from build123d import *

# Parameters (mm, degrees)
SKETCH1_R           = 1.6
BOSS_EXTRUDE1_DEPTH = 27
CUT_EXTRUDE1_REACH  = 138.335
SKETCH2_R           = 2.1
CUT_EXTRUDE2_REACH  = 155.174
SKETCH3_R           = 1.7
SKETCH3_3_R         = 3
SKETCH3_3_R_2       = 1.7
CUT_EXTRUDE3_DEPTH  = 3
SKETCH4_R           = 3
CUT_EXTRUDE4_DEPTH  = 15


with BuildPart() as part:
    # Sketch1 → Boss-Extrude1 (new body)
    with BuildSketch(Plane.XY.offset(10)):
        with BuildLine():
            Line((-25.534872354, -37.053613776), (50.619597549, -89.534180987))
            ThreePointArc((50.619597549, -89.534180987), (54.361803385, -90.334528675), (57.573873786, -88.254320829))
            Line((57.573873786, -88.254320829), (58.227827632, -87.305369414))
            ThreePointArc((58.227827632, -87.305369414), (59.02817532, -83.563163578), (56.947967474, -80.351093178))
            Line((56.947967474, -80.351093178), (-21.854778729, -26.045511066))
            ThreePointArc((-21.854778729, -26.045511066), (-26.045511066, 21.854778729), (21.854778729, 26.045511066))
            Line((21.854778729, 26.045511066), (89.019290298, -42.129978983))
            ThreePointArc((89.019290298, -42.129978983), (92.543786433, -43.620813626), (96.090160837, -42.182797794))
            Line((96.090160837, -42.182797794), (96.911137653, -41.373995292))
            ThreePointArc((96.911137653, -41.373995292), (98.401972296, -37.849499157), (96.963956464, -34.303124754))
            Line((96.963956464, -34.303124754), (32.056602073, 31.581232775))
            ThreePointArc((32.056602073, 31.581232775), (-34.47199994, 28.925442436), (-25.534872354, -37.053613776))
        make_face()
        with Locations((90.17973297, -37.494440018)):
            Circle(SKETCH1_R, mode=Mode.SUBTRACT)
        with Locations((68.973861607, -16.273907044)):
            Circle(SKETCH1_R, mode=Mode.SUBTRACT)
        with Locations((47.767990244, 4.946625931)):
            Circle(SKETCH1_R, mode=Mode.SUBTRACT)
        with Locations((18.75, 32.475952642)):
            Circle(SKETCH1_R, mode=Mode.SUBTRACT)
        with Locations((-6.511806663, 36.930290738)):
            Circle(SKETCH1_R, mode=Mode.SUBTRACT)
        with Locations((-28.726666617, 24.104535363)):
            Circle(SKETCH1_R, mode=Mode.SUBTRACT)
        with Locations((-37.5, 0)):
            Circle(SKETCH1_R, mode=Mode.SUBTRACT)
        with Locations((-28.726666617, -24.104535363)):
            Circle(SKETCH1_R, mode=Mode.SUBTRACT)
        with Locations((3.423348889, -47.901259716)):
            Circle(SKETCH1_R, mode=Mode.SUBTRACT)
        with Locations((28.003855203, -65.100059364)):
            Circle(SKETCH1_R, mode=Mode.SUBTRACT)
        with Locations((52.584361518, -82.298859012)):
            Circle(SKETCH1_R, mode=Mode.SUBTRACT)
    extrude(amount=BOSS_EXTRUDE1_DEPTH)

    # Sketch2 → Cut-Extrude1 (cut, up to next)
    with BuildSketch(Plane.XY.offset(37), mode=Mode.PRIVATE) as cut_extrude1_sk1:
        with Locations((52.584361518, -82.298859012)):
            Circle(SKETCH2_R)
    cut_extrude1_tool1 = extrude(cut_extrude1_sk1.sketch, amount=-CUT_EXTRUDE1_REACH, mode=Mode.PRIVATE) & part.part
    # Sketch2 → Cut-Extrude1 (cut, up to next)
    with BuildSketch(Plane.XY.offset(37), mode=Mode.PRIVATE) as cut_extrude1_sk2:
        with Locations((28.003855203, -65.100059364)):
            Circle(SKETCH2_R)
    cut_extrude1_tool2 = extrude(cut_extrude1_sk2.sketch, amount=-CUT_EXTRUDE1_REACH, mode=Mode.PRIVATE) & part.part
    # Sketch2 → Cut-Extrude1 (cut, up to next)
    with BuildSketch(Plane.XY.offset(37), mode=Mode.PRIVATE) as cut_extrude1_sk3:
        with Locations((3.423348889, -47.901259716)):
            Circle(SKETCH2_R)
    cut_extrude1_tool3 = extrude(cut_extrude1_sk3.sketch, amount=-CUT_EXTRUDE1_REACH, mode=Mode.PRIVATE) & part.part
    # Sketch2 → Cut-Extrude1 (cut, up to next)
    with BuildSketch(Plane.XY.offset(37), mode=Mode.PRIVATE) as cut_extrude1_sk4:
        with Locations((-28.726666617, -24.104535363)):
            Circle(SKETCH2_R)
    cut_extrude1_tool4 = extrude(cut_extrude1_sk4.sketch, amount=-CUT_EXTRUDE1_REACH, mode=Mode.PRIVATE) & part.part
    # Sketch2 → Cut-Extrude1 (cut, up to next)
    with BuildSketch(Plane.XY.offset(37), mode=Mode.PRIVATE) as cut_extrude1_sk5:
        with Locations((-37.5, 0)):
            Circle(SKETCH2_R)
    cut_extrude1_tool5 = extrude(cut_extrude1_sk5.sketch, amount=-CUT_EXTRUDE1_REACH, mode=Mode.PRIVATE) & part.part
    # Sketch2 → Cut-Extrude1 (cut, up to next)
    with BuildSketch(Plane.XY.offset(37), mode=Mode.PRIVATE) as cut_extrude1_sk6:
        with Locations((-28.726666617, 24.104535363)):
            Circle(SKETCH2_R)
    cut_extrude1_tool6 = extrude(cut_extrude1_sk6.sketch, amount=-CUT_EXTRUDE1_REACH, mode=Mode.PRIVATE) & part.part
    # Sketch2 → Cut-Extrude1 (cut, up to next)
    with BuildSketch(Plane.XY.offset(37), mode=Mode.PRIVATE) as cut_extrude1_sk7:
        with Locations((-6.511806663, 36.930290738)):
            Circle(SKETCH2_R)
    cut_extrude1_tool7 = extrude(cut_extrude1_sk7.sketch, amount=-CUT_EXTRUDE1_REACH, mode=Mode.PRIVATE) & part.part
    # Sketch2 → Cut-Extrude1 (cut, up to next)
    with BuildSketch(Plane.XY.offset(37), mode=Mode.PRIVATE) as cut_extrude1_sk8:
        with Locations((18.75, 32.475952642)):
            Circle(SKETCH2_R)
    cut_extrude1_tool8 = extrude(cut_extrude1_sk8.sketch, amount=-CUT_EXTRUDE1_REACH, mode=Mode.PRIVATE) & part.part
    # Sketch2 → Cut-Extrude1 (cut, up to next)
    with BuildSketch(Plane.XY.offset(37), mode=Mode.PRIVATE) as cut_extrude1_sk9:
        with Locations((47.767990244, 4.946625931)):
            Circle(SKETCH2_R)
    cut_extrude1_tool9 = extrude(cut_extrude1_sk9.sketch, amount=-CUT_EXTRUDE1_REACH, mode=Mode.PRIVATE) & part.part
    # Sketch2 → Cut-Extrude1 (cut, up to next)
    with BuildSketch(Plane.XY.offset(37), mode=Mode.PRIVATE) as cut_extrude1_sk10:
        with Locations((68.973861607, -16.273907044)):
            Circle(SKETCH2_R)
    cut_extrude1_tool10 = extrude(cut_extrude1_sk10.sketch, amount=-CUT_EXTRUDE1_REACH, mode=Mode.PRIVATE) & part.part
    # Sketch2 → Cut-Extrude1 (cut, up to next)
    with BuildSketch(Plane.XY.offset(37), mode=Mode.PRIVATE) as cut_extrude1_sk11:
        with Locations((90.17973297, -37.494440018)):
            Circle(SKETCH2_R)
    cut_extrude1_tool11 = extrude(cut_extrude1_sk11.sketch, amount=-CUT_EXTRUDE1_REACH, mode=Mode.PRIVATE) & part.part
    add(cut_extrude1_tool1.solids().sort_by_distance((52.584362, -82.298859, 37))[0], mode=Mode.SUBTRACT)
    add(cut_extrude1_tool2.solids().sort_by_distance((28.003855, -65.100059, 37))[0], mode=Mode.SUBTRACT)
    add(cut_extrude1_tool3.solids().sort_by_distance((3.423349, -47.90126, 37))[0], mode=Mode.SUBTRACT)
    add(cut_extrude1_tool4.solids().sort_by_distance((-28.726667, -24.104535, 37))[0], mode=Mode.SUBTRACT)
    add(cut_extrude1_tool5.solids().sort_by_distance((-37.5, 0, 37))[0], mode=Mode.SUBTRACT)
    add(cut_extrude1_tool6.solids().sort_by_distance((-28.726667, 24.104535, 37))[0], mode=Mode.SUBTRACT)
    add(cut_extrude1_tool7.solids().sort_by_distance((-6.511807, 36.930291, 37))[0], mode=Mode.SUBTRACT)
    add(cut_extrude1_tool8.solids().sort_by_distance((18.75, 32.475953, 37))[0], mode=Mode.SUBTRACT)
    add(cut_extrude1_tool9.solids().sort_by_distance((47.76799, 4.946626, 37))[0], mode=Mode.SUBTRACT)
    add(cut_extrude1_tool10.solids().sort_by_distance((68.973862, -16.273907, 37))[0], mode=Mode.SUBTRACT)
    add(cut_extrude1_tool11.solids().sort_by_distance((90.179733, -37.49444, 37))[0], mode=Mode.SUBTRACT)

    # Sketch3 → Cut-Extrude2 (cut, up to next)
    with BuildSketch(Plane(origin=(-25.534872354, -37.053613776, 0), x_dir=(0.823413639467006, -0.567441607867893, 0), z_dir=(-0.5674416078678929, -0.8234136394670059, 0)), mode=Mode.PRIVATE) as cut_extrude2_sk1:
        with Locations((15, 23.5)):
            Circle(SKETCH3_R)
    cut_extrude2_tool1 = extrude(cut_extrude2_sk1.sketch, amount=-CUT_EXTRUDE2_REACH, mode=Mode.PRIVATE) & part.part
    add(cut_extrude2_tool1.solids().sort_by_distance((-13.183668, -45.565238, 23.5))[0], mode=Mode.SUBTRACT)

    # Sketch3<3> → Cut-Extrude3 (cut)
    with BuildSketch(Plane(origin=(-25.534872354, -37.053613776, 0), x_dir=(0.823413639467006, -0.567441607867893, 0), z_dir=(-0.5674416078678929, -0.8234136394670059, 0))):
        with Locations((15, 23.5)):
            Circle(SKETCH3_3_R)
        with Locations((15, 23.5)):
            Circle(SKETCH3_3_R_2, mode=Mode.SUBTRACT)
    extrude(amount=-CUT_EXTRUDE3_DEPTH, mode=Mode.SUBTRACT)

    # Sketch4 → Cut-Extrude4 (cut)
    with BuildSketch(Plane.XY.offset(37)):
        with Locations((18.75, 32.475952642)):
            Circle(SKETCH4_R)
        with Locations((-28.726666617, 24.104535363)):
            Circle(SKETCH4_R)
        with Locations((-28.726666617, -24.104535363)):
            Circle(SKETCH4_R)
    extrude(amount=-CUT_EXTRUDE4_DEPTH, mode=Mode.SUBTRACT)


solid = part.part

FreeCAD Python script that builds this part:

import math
import FreeCAD as App
import Part
import Sketcher
from FreeCAD import Vector

doc = App.newDocument("Part")
params = doc.addObject("Spreadsheet::Sheet", "Params")
for row, (alias, value) in enumerate([
    ("sketch1_radius", "5 mm"),
    ("sketch1_radius2", "34 mm"),
    ("sketch1_radius3", "45 mm"),
    ("sketch1_diameter", "3.2 mm"),
    ("pad1_length", "27 mm"),
    ("sketch2_diameter", "4.2 mm"),
    ("pocket1_length", "27 mm"),
    ("sketch3_diameter", "4.2 mm"),
    ("pocket2_length", "27 mm"),
    ("sketch4_diameter", "4.2 mm"),
    ("pocket3_length", "27 mm"),
    ("sketch5_diameter", "4.2 mm"),
    ("pocket4_length", "27 mm"),
    ("sketch6_diameter", "4.2 mm"),
    ("pocket5_length", "27 mm"),
    ("sketch7_diameter", "4.2 mm"),
    ("pocket6_length", "27 mm"),
    ("sketch8_diameter", "4.2 mm"),
    ("pocket7_length", "27 mm"),
    ("sketch9_diameter", "4.2 mm"),
    ("pocket8_length", "27 mm"),
    ("sketch10_diameter", "4.2 mm"),
    ("pocket9_length", "27 mm"),
    ("sketch11_diameter", "4.2 mm"),
    ("pocket10_length", "27 mm"),
    ("sketch12_diameter", "4.2 mm"),
    ("pocket11_length", "27 mm"),
    ("sketch13_diameter", "3.4 mm"),
    ("sketch14_diameter", "6 mm"),
    ("sketch14_diameter2", "3.4 mm"),
    ("pocket13_length", "3 mm"),
    ("sketch15_diameter", "6 mm"),
    ("pocket14_length", "15 mm"),
], start=1):
    params.set(f"A{row}", alias)
    params.set(f"B{row}", "=" + value)
    params.setAlias(f"B{row}", alias)

body = doc.addObject("PartDesign::Body", "Body")

sketch1 = body.newObject("Sketcher::SketchObject", "Sketch")
sketch1.AttachmentSupport = (doc.getObject("XY_Plane"), [""])
sketch1.MapMode = "FlatFace"
sketch1.AttachmentOffset = App.Placement(Vector(0, 0, 10), App.Rotation())
sketch1.addGeometry([
    Part.LineSegment(Vector(-25.5, -37.1, 0), Vector(50.6, -89.5, 0)),
    Part.ArcOfCircle(Part.Circle(Vector(53.5, -85.4, 0), Vector(0, 0, 1), 5), math.radians(-125), math.radians(-35)),
    Part.LineSegment(Vector(57.6, -88.3, 0), Vector(58.2, -87.3, 0)),
    Part.ArcOfCircle(Part.Circle(Vector(54.1, -84.5, 0), Vector(0, 0, 1), 5), math.radians(-35), math.radians(55)),
    Part.LineSegment(Vector(56.9, -80.4, 0), Vector(-21.9, -26, 0)),
    Part.ArcOfCircle(Part.Circle(Vector(0, 0, 0), Vector(0, 0, 1), 34), math.radians(50), math.radians(230)),
    Part.LineSegment(Vector(21.9, 26, 0), Vector(89, -42.1, 0)),
    Part.ArcOfCircle(Part.Circle(Vector(92.6, -38.6, 0), Vector(0, 0, 1), 5), math.radians(-135), math.radians(-45)),
    Part.LineSegment(Vector(96.1, -42.2, 0), Vector(96.9, -41.4, 0)),
    Part.ArcOfCircle(Part.Circle(Vector(93.4, -37.8, 0), Vector(0, 0, 1), 5), math.radians(-45), math.radians(45)),
    Part.LineSegment(Vector(97, -34.3, 0), Vector(32.1, 31.6, 0)),
    Part.ArcOfCircle(Part.Circle(Vector(0, 0, 0), Vector(0, 0, 1), 45), math.radians(45), math.radians(235)),
    Part.Circle(Vector(-28.7, -24.1, 0), Vector(0, 0, 1), 1.6),
    Part.Circle(Vector(3.4, -47.9, 0), Vector(0, 0, 1), 1.6),
    Part.Circle(Vector(52.6, -82.3, 0), Vector(0, 0, 1), 1.6),
    Part.Circle(Vector(28, -65.1, 0), Vector(0, 0, 1), 1.6),
    Part.Circle(Vector(90.2, -37.5, 0), Vector(0, 0, 1), 1.6),
    Part.Circle(Vector(-37.5, 0, 0), Vector(0, 0, 1), 1.6),
    Part.Circle(Vector(-28.7, 24.1, 0), Vector(0, 0, 1), 1.6),
    Part.Circle(Vector(-6.5, 36.9, 0), Vector(0, 0, 1), 1.6),
    Part.Circle(Vector(18.8, 32.5, 0), Vector(0, 0, 1), 1.6),
    Part.Circle(Vector(47.8, 4.9, 0), Vector(0, 0, 1), 1.6),
    Part.Circle(Vector(69, -16.3, 0), Vector(0, 0, 1), 1.6),
], False)
sketch1.addConstraint([
    Sketcher.Constraint("Tangent", 0, 2, 1, 1),
    Sketcher.Constraint("Tangent", 1, 2, 2, 1),
    Sketcher.Constraint("Tangent", 2, 2, 3, 1),
    Sketcher.Constraint("Tangent", 3, 2, 4, 1),
    Sketcher.Constraint("Coincident", 4, 2, 5, 2),
    Sketcher.Constraint("Coincident", 5, 1, 6, 1),
    Sketcher.Constraint("Tangent", 6, 2, 7, 1),
    Sketcher.Constraint("Tangent", 7, 2, 8, 1),
    Sketcher.Constraint("Tangent", 8, 2, 9, 1),
    Sketcher.Constraint("Tangent", 9, 2, 10, 1),
    Sketcher.Constraint("Tangent", 10, 2, 11, 1),
    Sketcher.Constraint("Tangent", 11, 2, 0, 1),
    Sketcher.Constraint("Coincident", 5, 3, -1, 1),
    Sketcher.Constraint("Coincident", 11, 3, -1, 1),
    Sketcher.Constraint("Equal", 1, 3),
    Sketcher.Constraint("Equal", 3, 7),
    Sketcher.Constraint("Equal", 7, 9),
    Sketcher.Constraint("Equal", 12, 13),
    Sketcher.Constraint("Equal", 13, 14),
    Sketcher.Constraint("Equal", 14, 15),
    Sketcher.Constraint("Equal", 15, 16),
    Sketcher.Constraint("Equal", 16, 17),
    Sketcher.Constraint("Equal", 17, 18),
    Sketcher.Constraint("Equal", 18, 19),
    Sketcher.Constraint("Equal", 19, 20),
    Sketcher.Constraint("Equal", 20, 21),
    Sketcher.Constraint("Equal", 21, 22),
    Sketcher.Constraint("Symmetric", 12, 3, 18, 3, -1),
    Sketcher.Constraint("PointOnObject", 17, 3, -1),
    Sketcher.Constraint("Perpendicular", 0, 2),
    Sketcher.Constraint("Perpendicular", 2, 4),
    Sketcher.Constraint("Perpendicular", 6, 8),
    Sketcher.Constraint("Perpendicular", 8, 10),
    Sketcher.Constraint("Equal", 4, 6),
    Sketcher.Constraint("Equal", 2, 8),
    Sketcher.Constraint("Radius", 1, 5.0),
    Sketcher.Constraint("Radius", 5, 34.0),
    Sketcher.Constraint("Radius", 11, 45.0),
    Sketcher.Constraint("Diameter", 12, 3.2),
    Sketcher.Constraint("DistanceX", 17, 3, -1, 1, 37.5),
    Sketcher.Constraint("DistanceX", -1, 1, 20, 3, 18.75),
    Sketcher.Constraint("DistanceX", 12, 3, 7, 3, 121.307802),
    Sketcher.Constraint("DistanceY", 3, 3, 13, 3, 36.566902),
    Sketcher.Constraint("DistanceY", 14, 3, 13, 3, 34.397599),
    Sketcher.Constraint("DistanceY", 15, 3, 13, 3, 17.1988),
    Sketcher.Constraint("DistanceX", 22, 3, 7, 2, 27.116299),
    Sketcher.Constraint("Distance", 2, 1.15246),
    Sketcher.Constraint("DistanceX", -1, 1, 3, 3, 54.110759),
    Sketcher.Constraint("DistanceY", 3, 3, -1, 1, 84.468161),
    Sketcher.Constraint("DistanceX", -1, 1, 9, 3, 93.402112),
    Sketcher.Constraint("DistanceX", -1, 1, 13, 3, 3.423349),
    Sketcher.Constraint("DistanceX", -1, 1, 14, 3, 52.584362),
    Sketcher.Constraint("DistanceY", 16, 3, -1, 1, 37.49444),
    Sketcher.Constraint("DistanceY", -1, 1, 19, 3, 36.930291),
    Sketcher.Constraint("DistanceX", -1, 1, 21, 3, 47.76799),
    Sketcher.Constraint("DistanceX", 15, 3, 1, 3, 25.45295),
    Sketcher.Constraint("DistanceX", 16, 3, 9, 3, 3.222379),
    Sketcher.Constraint("DistanceY", 12, 3, 18, 3, 48.209071),
    Sketcher.Constraint("DistanceX", 18, 3, 19, 3, 22.21486),
    Sketcher.Constraint("DistanceY", 20, 3, 19, 3, 4.454338),
    Sketcher.Constraint("DistanceY", 7, 3, 21, 3, 43.567579),
    Sketcher.Constraint("DistanceY", 6, 2, 22, 3, 25.856072),
])
sketch1.setExpression("Constraints[35]", "Params.sketch1_radius")
sketch1.setExpression("Constraints[36]", "Params.sketch1_radius2")
sketch1.setExpression("Constraints[37]", "Params.sketch1_radius3")
sketch1.setExpression("Constraints[38]", "Params.sketch1_diameter")
pad1 = body.newObject("PartDesign::Pad", "Pad")
pad1.Profile = sketch1
pad1.setExpression("Length", "Params.pad1_length")

sketch2 = body.newObject("Sketcher::SketchObject", "Sketch001")
sketch2.AttachmentSupport = (doc.getObject("XY_Plane"), [""])
sketch2.MapMode = "FlatFace"
sketch2.AttachmentOffset = App.Placement(Vector(0, 0, 37), App.Rotation())
sketch2.addGeometry(Part.Circle(Vector(52.6, -82.3, 0), Vector(0, 0, 1), 2.1), False)
sketch2.addConstraint([
    Sketcher.Constraint("Diameter", 0, 4.2),
    Sketcher.Constraint("DistanceX", -1, 1, 0, 3, 52.584362),
    Sketcher.Constraint("DistanceY", 0, 3, -1, 1, 82.298859),
])
sketch2.setExpression("Constraints[0]", "Params.sketch2_diameter")
pocket1 = body.newObject("PartDesign::Pocket", "Pocket")
pocket1.Profile = sketch2
pocket1.setExpression("Length", "Params.pocket1_length")

sketch3 = body.newObject("Sketcher::SketchObject", "Sketch002")
sketch3.AttachmentSupport = (doc.getObject("XY_Plane"), [""])
sketch3.MapMode = "FlatFace"
sketch3.AttachmentOffset = App.Placement(Vector(0, 0, 37), App.Rotation())
sketch3.addGeometry(Part.Circle(Vector(28, -65.1, 0), Vector(0, 0, 1), 2.1), False)
sketch3.addConstraint([
    Sketcher.Constraint("Diameter", 0, 4.2),
    Sketcher.Constraint("DistanceY", 0, 3, -1, 1, 65.100059),
    Sketcher.Constraint("DistanceX", -1, 1, 0, 3, 28.003855),
])
sketch3.setExpression("Constraints[0]", "Params.sketch3_diameter")
pocket2 = body.newObject("PartDesign::Pocket", "Pocket001")
pocket2.Profile = sketch3
pocket2.setExpression("Length", "Params.pocket2_length")

sketch4 = body.newObject("Sketcher::SketchObject", "Sketch003")
sketch4.AttachmentSupport = (doc.getObject("XY_Plane"), [""])
sketch4.MapMode = "FlatFace"
sketch4.AttachmentOffset = App.Placement(Vector(0, 0, 37), App.Rotation())
sketch4.addGeometry(Part.Circle(Vector(3.4, -47.9, 0), Vector(0, 0, 1), 2.1), False)
sketch4.addConstraint([
    Sketcher.Constraint("Diameter", 0, 4.2),
    Sketcher.Constraint("DistanceX", -1, 1, 0, 3, 3.423349),
    Sketcher.Constraint("DistanceY", 0, 3, -1, 1, 47.90126),
])
sketch4.setExpression("Constraints[0]", "Params.sketch4_diameter")
pocket3 = body.newObject("PartDesign::Pocket", "Pocket002")
pocket3.Profile = sketch4
pocket3.setExpression("Length", "Params.pocket3_length")

sketch5 = body.newObject("Sketcher::SketchObject", "Sketch004")
sketch5.AttachmentSupport = (doc.getObject("XY_Plane"), [""])
sketch5.MapMode = "FlatFace"
sketch5.AttachmentOffset = App.Placement(Vector(0, 0, 37), App.Rotation())
sketch5.addGeometry(Part.Circle(Vector(-28.7, -24.1, 0), Vector(0, 0, 1), 2.1), False)
sketch5.addConstraint([
    Sketcher.Constraint("Diameter", 0, 4.2),
    Sketcher.Constraint("DistanceX", 0, 3, -1, 1, 28.726667),
    Sketcher.Constraint("DistanceY", 0, 3, -1, 1, 24.104535),
])
sketch5.setExpression("Constraints[0]", "Params.sketch5_diameter")
pocket4 = body.newObject("PartDesign::Pocket", "Pocket003")
pocket4.Profile = sketch5
pocket4.setExpression("Length", "Params.pocket4_length")

sketch6 = body.newObject("Sketcher::SketchObject", "Sketch005")
sketch6.AttachmentSupport = (doc.getObject("XY_Plane"), [""])
sketch6.MapMode = "FlatFace"
sketch6.AttachmentOffset = App.Placement(Vector(0, 0, 37), App.Rotation())
sketch6.addGeometry(Part.Circle(Vector(-37.5, 0, 0), Vector(0, 0, 1), 2.1), False)
sketch6.addConstraint([
    Sketcher.Constraint("PointOnObject", 0, 3, -1),
    Sketcher.Constraint("Diameter", 0, 4.2),
    Sketcher.Constraint("DistanceX", 0, 3, -1, 1, 37.5),
])
sketch6.setExpression("Constraints[1]", "Params.sketch6_diameter")
pocket5 = body.newObject("PartDesign::Pocket", "Pocket004")
pocket5.Profile = sketch6
pocket5.setExpression("Length", "Params.pocket5_length")

sketch7 = body.newObject("Sketcher::SketchObject", "Sketch006")
sketch7.AttachmentSupport = (doc.getObject("XY_Plane"), [""])
sketch7.MapMode = "FlatFace"
sketch7.AttachmentOffset = App.Placement(Vector(0, 0, 37), App.Rotation())
sketch7.addGeometry(Part.Circle(Vector(-28.7, 24.1, 0), Vector(0, 0, 1), 2.1), False)
sketch7.addConstraint([
    Sketcher.Constraint("Diameter", 0, 4.2),
    Sketcher.Constraint("DistanceX", 0, 3, -1, 1, 28.726667),
    Sketcher.Constraint("DistanceY", -1, 1, 0, 3, 24.104535),
])
sketch7.setExpression("Constraints[0]", "Params.sketch7_diameter")
pocket6 = body.newObject("PartDesign::Pocket", "Pocket005")
pocket6.Profile = sketch7
pocket6.setExpression("Length", "Params.pocket6_length")

sketch8 = body.newObject("Sketcher::SketchObject", "Sketch007")
sketch8.AttachmentSupport = (doc.getObject("XY_Plane"), [""])
sketch8.MapMode = "FlatFace"
sketch8.AttachmentOffset = App.Placement(Vector(0, 0, 37), App.Rotation())
sketch8.addGeometry(Part.Circle(Vector(-6.5, 36.9, 0), Vector(0, 0, 1), 2.1), False)
sketch8.addConstraint([
    Sketcher.Constraint("Diameter", 0, 4.2),
    Sketcher.Constraint("DistanceY", -1, 1, 0, 3, 36.930291),
    Sketcher.Constraint("DistanceX", 0, 3, -1, 1, 6.511807),
])
sketch8.setExpression("Constraints[0]", "Params.sketch8_diameter")
pocket7 = body.newObject("PartDesign::Pocket", "Pocket006")
pocket7.Profile = sketch8
pocket7.setExpression("Length", "Params.pocket7_length")

sketch9 = body.newObject("Sketcher::SketchObject", "Sketch008")
sketch9.AttachmentSupport = (doc.getObject("XY_Plane"), [""])
sketch9.MapMode = "FlatFace"
sketch9.AttachmentOffset = App.Placement(Vector(0, 0, 37), App.Rotation())
sketch9.addGeometry(Part.Circle(Vector(18.8, 32.5, 0), Vector(0, 0, 1), 2.1), False)
sketch9.addConstraint([
    Sketcher.Constraint("Diameter", 0, 4.2),
    Sketcher.Constraint("DistanceX", -1, 1, 0, 3, 18.75),
    Sketcher.Constraint("DistanceY", -1, 1, 0, 3, 32.475953),
])
sketch9.setExpression("Constraints[0]", "Params.sketch9_diameter")
pocket8 = body.newObject("PartDesign::Pocket", "Pocket007")
pocket8.Profile = sketch9
pocket8.setExpression("Length", "Params.pocket8_length")

sketch10 = body.newObject("Sketcher::SketchObject", "Sketch009")
sketch10.AttachmentSupport = (doc.getObject("XY_Plane"), [""])
sketch10.MapMode = "FlatFace"
sketch10.AttachmentOffset = App.Placement(Vector(0, 0, 37), App.Rotation())
sketch10.addGeometry(Part.Circle(Vector(47.8, 4.9, 0), Vector(0, 0, 1), 2.1), False)
sketch10.addConstraint([
    Sketcher.Constraint("Diameter", 0, 4.2),
    Sketcher.Constraint("DistanceX", -1, 1, 0, 3, 47.76799),
    Sketcher.Constraint("DistanceY", -1, 1, 0, 3, 4.946626),
])
sketch10.setExpression("Constraints[0]", "Params.sketch10_diameter")
pocket9 = body.newObject("PartDesign::Pocket", "Pocket008")
pocket9.Profile = sketch10
pocket9.setExpression("Length", "Params.pocket9_length")

sketch11 = body.newObject("Sketcher::SketchObject", "Sketch010")
sketch11.AttachmentSupport = (doc.getObject("XY_Plane"), [""])
sketch11.MapMode = "FlatFace"
sketch11.AttachmentOffset = App.Placement(Vector(0, 0, 37), App.Rotation())
sketch11.addGeometry(Part.Circle(Vector(69, -16.3, 0), Vector(0, 0, 1), 2.1), False)
sketch11.addConstraint([
    Sketcher.Constraint("Diameter", 0, 4.2),
    Sketcher.Constraint("DistanceX", -1, 1, 0, 3, 68.973862),
    Sketcher.Constraint("DistanceY", 0, 3, -1, 1, 16.273907),
])
sketch11.setExpression("Constraints[0]", "Params.sketch11_diameter")
pocket10 = body.newObject("PartDesign::Pocket", "Pocket009")
pocket10.Profile = sketch11
pocket10.setExpression("Length", "Params.pocket10_length")

sketch12 = body.newObject("Sketcher::SketchObject", "Sketch011")
sketch12.AttachmentSupport = (doc.getObject("XY_Plane"), [""])
sketch12.MapMode = "FlatFace"
sketch12.AttachmentOffset = App.Placement(Vector(0, 0, 37), App.Rotation())
sketch12.addGeometry(Part.Circle(Vector(90.2, -37.5, 0), Vector(0, 0, 1), 2.1), False)
sketch12.addConstraint([
    Sketcher.Constraint("Diameter", 0, 4.2),
    Sketcher.Constraint("DistanceY", 0, 3, -1, 1, 37.49444),
    Sketcher.Constraint("DistanceX", -1, 1, 0, 3, 90.179733),
])
sketch12.setExpression("Constraints[0]", "Params.sketch12_diameter")
pocket11 = body.newObject("PartDesign::Pocket", "Pocket010")
pocket11.Profile = sketch12
pocket11.setExpression("Length", "Params.pocket11_length")

sketch13 = body.newObject("Sketcher::SketchObject", "Sketch012")
sketch13.Placement = App.Placement(Vector(-25.534872, -37.053614, 0), App.Rotation(Vector(0.823413639, -0.567441608, 0), Vector(0, 0, 0.999999999), Vector(-0.567441608, -0.823413639, 0), "ZXY"))
sketch13.addGeometry(Part.Circle(Vector(15, 23.5, 0), Vector(0, 0, 1), 1.7), False)
sketch13.addConstraint([
    Sketcher.Constraint("Diameter", 0, 3.4),
    Sketcher.Constraint("DistanceX", -1, 1, 0, 3, 15.0),
    Sketcher.Constraint("DistanceY", -1, 1, 0, 3, 23.5),
])
sketch13.setExpression("Constraints[0]", "Params.sketch13_diameter")
pocket12 = body.newObject("PartDesign::Pocket", "Pocket011")
pocket12.Profile = sketch13
pocket12.Type = "UpToFirst"

sketch14 = body.newObject("Sketcher::SketchObject", "Sketch013")
sketch14.Placement = App.Placement(Vector(-25.534872, -37.053614, 0), App.Rotation(Vector(0.823413639, -0.567441608, 0), Vector(0, 0, 0.999999999), Vector(-0.567441608, -0.823413639, 0), "ZXY"))
sketch14.addGeometry([
    Part.Circle(Vector(15, 23.5, 0), Vector(0, 0, 1), 3),
    Part.Circle(Vector(15, 23.5, 0), Vector(0, 0, 1), 1.7),
], False)
sketch14.addConstraint([
    Sketcher.Constraint("Coincident", 1, 3, 0, 3),
    Sketcher.Constraint("Diameter", 0, 6.0),
    Sketcher.Constraint("Diameter", 1, 3.4),
    Sketcher.Constraint("DistanceX", -1, 1, 0, 3, 15.0),
    Sketcher.Constraint("DistanceY", -1, 1, 0, 3, 23.5),
])
sketch14.setExpression("Constraints[1]", "Params.sketch14_diameter")
sketch14.setExpression("Constraints[2]", "Params.sketch14_diameter2")
pocket13 = body.newObject("PartDesign::Pocket", "Pocket012")
pocket13.Profile = sketch14
pocket13.setExpression("Length", "Params.pocket13_length")

sketch15 = body.newObject("Sketcher::SketchObject", "Sketch014")
sketch15.AttachmentSupport = (doc.getObject("XY_Plane"), [""])
sketch15.MapMode = "FlatFace"
sketch15.AttachmentOffset = App.Placement(Vector(0, 0, 37), App.Rotation())
sketch15.addGeometry([
    Part.Circle(Vector(18.8, 32.5, 0), Vector(0, 0, 1), 3),
    Part.Circle(Vector(-28.7, 24.1, 0), Vector(0, 0, 1), 3),
    Part.Circle(Vector(-28.7, -24.1, 0), Vector(0, 0, 1), 3),
], False)
sketch15.addConstraint([
    Sketcher.Constraint("Equal", 0, 1),
    Sketcher.Constraint("Equal", 1, 2),
    Sketcher.Constraint("Symmetric", 1, 3, 2, 3, -1),
    Sketcher.Constraint("Diameter", 0, 6.0),
    Sketcher.Constraint("DistanceX", -1, 1, 0, 3, 18.75),
    Sketcher.Constraint("DistanceY", 2, 3, 1, 3, 48.209071),
    Sketcher.Constraint("DistanceY", 2, 3, 0, 3, 56.580488),
    Sketcher.Constraint("DistanceX", 1, 3, -1, 1, 28.726667),
])
sketch15.setExpression("Constraints[3]", "Params.sketch15_diameter")
pocket14 = body.newObject("PartDesign::Pocket", "Pocket013")
pocket14.Profile = sketch15
pocket14.setExpression("Length", "Params.pocket14_length")

doc.recompute()
